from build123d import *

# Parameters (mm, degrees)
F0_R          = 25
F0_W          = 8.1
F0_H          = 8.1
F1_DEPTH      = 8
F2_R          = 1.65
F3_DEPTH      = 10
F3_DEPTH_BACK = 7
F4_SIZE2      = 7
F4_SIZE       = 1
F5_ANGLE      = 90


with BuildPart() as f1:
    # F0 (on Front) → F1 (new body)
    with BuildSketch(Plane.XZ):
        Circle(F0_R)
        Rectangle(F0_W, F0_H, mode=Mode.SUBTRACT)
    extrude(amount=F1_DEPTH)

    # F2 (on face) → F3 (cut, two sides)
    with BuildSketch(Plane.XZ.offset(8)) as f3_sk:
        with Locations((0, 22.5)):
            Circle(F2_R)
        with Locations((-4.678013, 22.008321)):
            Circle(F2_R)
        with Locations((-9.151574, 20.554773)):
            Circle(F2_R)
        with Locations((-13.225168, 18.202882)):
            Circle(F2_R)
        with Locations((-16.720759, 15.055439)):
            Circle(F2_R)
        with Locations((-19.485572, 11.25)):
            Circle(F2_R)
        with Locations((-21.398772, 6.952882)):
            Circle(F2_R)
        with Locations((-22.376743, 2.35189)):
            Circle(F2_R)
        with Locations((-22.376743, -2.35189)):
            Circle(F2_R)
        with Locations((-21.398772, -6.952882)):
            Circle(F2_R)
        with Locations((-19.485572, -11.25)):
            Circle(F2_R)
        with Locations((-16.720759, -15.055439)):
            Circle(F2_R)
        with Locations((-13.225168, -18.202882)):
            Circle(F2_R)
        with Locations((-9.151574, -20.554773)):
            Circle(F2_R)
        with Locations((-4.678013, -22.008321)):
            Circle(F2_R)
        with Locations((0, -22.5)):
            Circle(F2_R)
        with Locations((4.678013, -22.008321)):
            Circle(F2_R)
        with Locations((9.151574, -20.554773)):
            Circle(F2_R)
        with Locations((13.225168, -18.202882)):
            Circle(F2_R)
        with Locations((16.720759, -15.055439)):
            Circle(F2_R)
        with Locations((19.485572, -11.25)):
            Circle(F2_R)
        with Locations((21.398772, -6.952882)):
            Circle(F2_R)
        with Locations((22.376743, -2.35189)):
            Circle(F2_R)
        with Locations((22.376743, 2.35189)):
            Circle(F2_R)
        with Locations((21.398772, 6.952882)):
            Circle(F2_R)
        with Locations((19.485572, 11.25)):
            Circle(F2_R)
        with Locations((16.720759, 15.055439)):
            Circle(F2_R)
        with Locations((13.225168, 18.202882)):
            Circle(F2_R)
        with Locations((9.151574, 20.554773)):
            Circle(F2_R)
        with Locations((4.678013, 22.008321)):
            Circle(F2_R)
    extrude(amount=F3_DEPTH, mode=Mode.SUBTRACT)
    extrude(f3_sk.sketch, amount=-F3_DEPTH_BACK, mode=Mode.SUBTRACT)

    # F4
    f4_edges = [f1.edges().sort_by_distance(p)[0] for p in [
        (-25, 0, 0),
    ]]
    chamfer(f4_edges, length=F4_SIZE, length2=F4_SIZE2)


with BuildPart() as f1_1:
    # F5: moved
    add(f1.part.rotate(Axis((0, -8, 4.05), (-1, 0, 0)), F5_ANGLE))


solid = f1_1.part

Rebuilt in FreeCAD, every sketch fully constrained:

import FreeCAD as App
import Part
import Sketcher
from FreeCAD import Vector
Q = App.Units.Quantity


def edges_at(feature, points):
    """Names of the edges that pass closest to the given points."""
    edges = feature.Shape.Edges
    near = lambda p: min(range(len(edges)), key=lambda i: edges[i].distToShape(Part.Vertex(*p))[0])
    return sorted({f"Edge{near(p) + 1}" for p in points})

doc = App.newDocument("Part")
body = doc.addObject("PartDesign::Body", "Body")

# Sketch on XZ plane
sketch1 = body.newObject("Sketcher::SketchObject", "Sketch")
sketch1.AttachmentSupport = (doc.getObject("XZ_Plane"), [""])
sketch1.MapMode = "FlatFace"
sketch1.addGeometry([
    Part.Circle(Vector(0, 0, 0), Vector(0, 0, 1), 25),  # 0
    Part.LineSegment(Vector(4.05, -4.05, 0), Vector(-4.05, -4.05, 0)),  # 1
    Part.LineSegment(Vector(-4.05, -4.05, 0), Vector(-4.05, 4.05, 0)),  # 2
    Part.LineSegment(Vector(-4.05, 4.05, 0), Vector(4.05, 4.05, 0)),  # 3
    Part.LineSegment(Vector(4.05, 4.05, 0), Vector(4.05, -4.05, 0)),  # 4
], False)
sketch1.addConstraint([
    Sketcher.Constraint("Coincident", 1, 2, 2, 1),
    Sketcher.Constraint("Coincident", 2, 2, 3, 1),
    Sketcher.Constraint("Coincident", 3, 2, 4, 1),
    Sketcher.Constraint("Coincident", 4, 2, 1, 1),
    Sketcher.Constraint("Horizontal", 1),
    Sketcher.Constraint("Vertical", 2),
    Sketcher.Constraint("Horizontal", 3),
    Sketcher.Constraint("Vertical", 4),
    Sketcher.Constraint("Coincident", 0, 3, -1, 1),
    Sketcher.Constraint("Symmetric", 1, 2, 3, 2, -1, 1),
    Sketcher.Constraint("Equal", 3, 2),
    Sketcher.Constraint("Diameter", 0, Q("50 mm")),
    Sketcher.Constraint("DistanceX", 1, 2, 1, 1, Q("8.1 mm")),
])
pad1 = body.newObject("PartDesign::Pad", "Pad")
pad1.Profile = sketch1
pad1.Length = 8

# Sketch on XZ plane
sketch2 = body.newObject("Sketcher::SketchObject", "Sketch001")
sketch2.AttachmentSupport = (doc.getObject("XZ_Plane"), [""])
sketch2.MapMode = "FlatFace"
sketch2.AttachmentOffset = App.Placement(Vector(0, 0, 8), App.Rotation())
sketch2.addGeometry([
    Part.Circle(Vector(0, 22.5, 0), Vector(0, 0, 1), 1.65),  # 0
    Part.Circle(Vector(-4.678013, 22.008321, 0), Vector(0, 0, 1), 1.65),  # 1
    Part.Circle(Vector(-9.151574, 20.554773, 0), Vector(0, 0, 1), 1.65),  # 2
    Part.Circle(Vector(-13.225168, 18.202882, 0), Vector(0, 0, 1), 1.65),  # 3
    Part.Circle(Vector(-16.720759, 15.055439, 0), Vector(0, 0, 1), 1.65),  # 4
    Part.Circle(Vector(-19.485572, 11.25, 0), Vector(0, 0, 1), 1.65),  # 5
    Part.Circle(Vector(-21.398772, 6.952882, 0), Vector(0, 0, 1), 1.65),  # 6
    Part.Circle(Vector(-22.376743, 2.35189, 0), Vector(0, 0, 1), 1.65),  # 7
    Part.Circle(Vector(-22.376743, -2.35189, 0), Vector(0, 0, 1), 1.65),  # 8
    Part.Circle(Vector(-21.398772, -6.952882, 0), Vector(0, 0, 1), 1.65),  # 9
    Part.Circle(Vector(-19.485572, -11.25, 0), Vector(0, 0, 1), 1.65),  # 10
    Part.Circle(Vector(-16.720759, -15.055439, 0), Vector(0, 0, 1), 1.65),  # 11
    Part.Circle(Vector(-13.225168, -18.202882, 0), Vector(0, 0, 1), 1.65),  # 12
    Part.Circle(Vector(-9.151574, -20.554773, 0), Vector(0, 0, 1), 1.65),  # 13
    Part.Circle(Vector(-4.678013, -22.008321, 0), Vector(0, 0, 1), 1.65),  # 14
    Part.Circle(Vector(0, -22.5, 0), Vector(0, 0, 1), 1.65),  # 15
    Part.Circle(Vector(4.678013, -22.008321, 0), Vector(0, 0, 1), 1.65),  # 16
    Part.Circle(Vector(9.151574, -20.554773, 0), Vector(0, 0, 1), 1.65),  # 17
    Part.Circle(Vector(13.225168, -18.202882, 0), Vector(0, 0, 1), 1.65),  # 18
    Part.Circle(Vector(16.720759, -15.055439, 0), Vector(0, 0, 1), 1.65),  # 19
    Part.Circle(Vector(19.485572, -11.25, 0), Vector(0, 0, 1), 1.65),  # 20
    Part.Circle(Vector(21.398772, -6.952882, 0), Vector(0, 0, 1), 1.65),  # 21
    Part.Circle(Vector(22.376743, -2.35189, 0), Vector(0, 0, 1), 1.65),  # 22
    Part.Circle(Vector(22.376743, 2.35189, 0), Vector(0, 0, 1), 1.65),  # 23
    Part.Circle(Vector(21.398772, 6.952882, 0), Vector(0, 0, 1), 1.65),  # 24
    Part.Circle(Vector(19.485572, 11.25, 0), Vector(0, 0, 1), 1.65),  # 25
    Part.Circle(Vector(16.720759, 15.055439, 0), Vector(0, 0, 1), 1.65),  # 26
    Part.Circle(Vector(13.225168, 18.202882, 0), Vector(0, 0, 1), 1.65),  # 27
    Part.Circle(Vector(9.151574, 20.554773, 0), Vector(0, 0, 1), 1.65),  # 28
    Part.Circle(Vector(4.678013, 22.008321, 0), Vector(0, 0, 1), 1.65),  # 29
], False)
sketch2.addConstraint([
    Sketcher.Constraint("Equal", 0, 1),
    Sketcher.Constraint("Equal", 1, 2),
    Sketcher.Constraint("Equal", 2, 3),
    Sketcher.Constraint("Equal", 3, 4),
    Sketcher.Constraint("Equal", 4, 5),
    Sketcher.Constraint("Equal", 5, 6),
    Sketcher.Constraint("Equal", 6, 7),
    Sketcher.Constraint("Equal", 7, 8),
    Sketcher.Constraint("Equal", 8, 9),
    Sketcher.Constraint("Equal", 9, 10),
    Sketcher.Constraint("Equal", 10, 11),
    Sketcher.Constraint("Equal", 11, 12),
    Sketcher.Constraint("Equal", 12, 13),
    Sketcher.Constraint("Equal", 13, 14),
    Sketcher.Constraint("Equal", 14, 15),
    Sketcher.Constraint("Equal", 15, 16),
    Sketcher.Constraint("Equal", 16, 17),
    Sketcher.Constraint("Equal", 17, 18),
    Sketcher.Constraint("Equal", 18, 19),
    Sketcher.Constraint("Equal", 19, 20),
    Sketcher.Constraint("Equal", 20, 21),
    Sketcher.Constraint("Equal", 21, 22),
    Sketcher.Constraint("Equal", 22, 23),
    Sketcher.Constraint("Equal", 23, 24),
    Sketcher.Constraint("Equal", 24, 25),
    Sketcher.Constraint("Equal", 25, 26),
    Sketcher.Constraint("Equal", 26, 27),
    Sketcher.Constraint("Equal", 27, 28),
    Sketcher.Constraint("Equal", 28, 29),
    Sketcher.Constraint("Symmetric", 0, 3, 15, 3, -1, 1),
    Sketcher.Constraint("Symmetric", 1, 3, 16, 3, -1, 1),
    Sketcher.Constraint("Symmetric", 2, 3, 17, 3, -1, 1),
    Sketcher.Constraint("Symmetric", 3, 3, 18, 3, -1, 1),
    Sketcher.Constraint("Symmetric", 4, 3, 19, 3, -1, 1),
    Sketcher.Constraint("Symmetric", 5, 3, 20, 3, -1, 1),
    Sketcher.Constraint("Symmetric", 6, 3, 21, 3, -1, 1),
    Sketcher.Constraint("Symmetric", 7, 3, 22, 3, -1, 1),
    Sketcher.Constraint("Symmetric", 8, 3, 23, 3, -1, 1),
    Sketcher.Constraint("Symmetric", 9, 3, 24, 3, -1, 1),
    Sketcher.Constraint("Symmetric", 10, 3, 25, 3, -1, 1),
    Sketcher.Constraint("Symmetric", 11, 3, 26, 3, -1, 1),
    Sketcher.Constraint("Symmetric", 12, 3, 27, 3, -1, 1),
    Sketcher.Constraint("Symmetric", 13, 3, 28, 3, -1, 1),
    Sketcher.Constraint("Symmetric", 14, 3, 29, 3, -1, 1),
    Sketcher.Constraint("Symmetric", 14, 3, 16, 3, -2),
    Sketcher.Constraint("Symmetric", 13, 3, 17, 3, -2),
    Sketcher.Constraint("Symmetric", 12, 3, 18, 3, -2),
    Sketcher.Constraint("Symmetric", 11, 3, 19, 3, -2),
    Sketcher.Constraint("Symmetric", 10, 3, 20, 3, -2),
    Sketcher.Constraint("Symmetric", 9, 3, 21, 3, -2),
    Sketcher.Constraint("Symmetric", 8, 3, 22, 3, -2),
    Sketcher.Constraint("PointOnObject", 0, 3, -2),
    Sketcher.Constraint("Diameter", 0, Q("3.3 mm")),
    Sketcher.Constraint("DistanceY", -1, 1, 0, 3, Q("22.5 mm")),
    Sketcher.Constraint("DistanceY", 10, 3, 5, 3, Q("22.5 mm")),
    Sketcher.Constraint("DistanceY", 6, 3, 3, 3, Q("11.25 mm")),
    Sketcher.Constraint("DistanceX", 5, 3, 2, 3, Q("10.333998 mm")),
    Sketcher.Constraint("DistanceX", 6, 3, 5, 3, Q("1.9132 mm")),
    Sketcher.Constraint("DistanceY", -1, 1, 1, 3, Q("22.008321 mm")),
    Sketcher.Constraint("DistanceY", -1, 1, 3, 3, Q("18.202882 mm")),
    Sketcher.Constraint("DistanceX", 4, 3, -1, 1, Q("16.720759 mm")),
    Sketcher.Constraint("DistanceY", -1, 1, 4, 3, Q("15.055439 mm")),
    Sketcher.Constraint("DistanceY", -1, 1, 7, 3, Q("2.35189 mm")),
    Sketcher.Constraint("DistanceX", 2, 3, 1, 3, Q("4.473561 mm")),
    Sketcher.Constraint("DistanceY", 3, 3, 2, 3, Q("2.351891 mm")),
    Sketcher.Constraint("DistanceX", 4, 3, 3, 3, Q("3.495591 mm")),
    Sketcher.Constraint("DistanceX", 7, 3, 6, 3, Q("0.977971 mm")),
    Sketcher.Constraint("DistanceX", 12, 3, 16, 3, Q("17.903181 mm")),
])
pocket1 = body.newObject("PartDesign::Pocket", "Pocket")
pocket1.Profile = sketch2
pocket1.Type = "TwoLengths"
pocket1.Length = 10
pocket1.Length2 = 7
pocket1.Reversed = True
doc.recompute()

chamfer = body.newObject("PartDesign::Chamfer", "Chamfer")
chamfer.Base = (pocket1, edges_at(pocket1, [(-25, 0, 0)]))
chamfer.ChamferType = "Two distances"
chamfer.Size = 1
chamfer.Size2 = 7
body2 = doc.addObject("PartDesign::Body", "Body001")
doc.recompute()

body.Placement = App.Placement(Vector(0, -12.05, -3.95), App.Rotation(Vector(-1, 0, 0), 90))
boolean = body2.newObject("PartDesign::Boolean", "Boolean")
boolean.Type = "Fuse"
boolean.addObjects([body])

doc.recompute()
